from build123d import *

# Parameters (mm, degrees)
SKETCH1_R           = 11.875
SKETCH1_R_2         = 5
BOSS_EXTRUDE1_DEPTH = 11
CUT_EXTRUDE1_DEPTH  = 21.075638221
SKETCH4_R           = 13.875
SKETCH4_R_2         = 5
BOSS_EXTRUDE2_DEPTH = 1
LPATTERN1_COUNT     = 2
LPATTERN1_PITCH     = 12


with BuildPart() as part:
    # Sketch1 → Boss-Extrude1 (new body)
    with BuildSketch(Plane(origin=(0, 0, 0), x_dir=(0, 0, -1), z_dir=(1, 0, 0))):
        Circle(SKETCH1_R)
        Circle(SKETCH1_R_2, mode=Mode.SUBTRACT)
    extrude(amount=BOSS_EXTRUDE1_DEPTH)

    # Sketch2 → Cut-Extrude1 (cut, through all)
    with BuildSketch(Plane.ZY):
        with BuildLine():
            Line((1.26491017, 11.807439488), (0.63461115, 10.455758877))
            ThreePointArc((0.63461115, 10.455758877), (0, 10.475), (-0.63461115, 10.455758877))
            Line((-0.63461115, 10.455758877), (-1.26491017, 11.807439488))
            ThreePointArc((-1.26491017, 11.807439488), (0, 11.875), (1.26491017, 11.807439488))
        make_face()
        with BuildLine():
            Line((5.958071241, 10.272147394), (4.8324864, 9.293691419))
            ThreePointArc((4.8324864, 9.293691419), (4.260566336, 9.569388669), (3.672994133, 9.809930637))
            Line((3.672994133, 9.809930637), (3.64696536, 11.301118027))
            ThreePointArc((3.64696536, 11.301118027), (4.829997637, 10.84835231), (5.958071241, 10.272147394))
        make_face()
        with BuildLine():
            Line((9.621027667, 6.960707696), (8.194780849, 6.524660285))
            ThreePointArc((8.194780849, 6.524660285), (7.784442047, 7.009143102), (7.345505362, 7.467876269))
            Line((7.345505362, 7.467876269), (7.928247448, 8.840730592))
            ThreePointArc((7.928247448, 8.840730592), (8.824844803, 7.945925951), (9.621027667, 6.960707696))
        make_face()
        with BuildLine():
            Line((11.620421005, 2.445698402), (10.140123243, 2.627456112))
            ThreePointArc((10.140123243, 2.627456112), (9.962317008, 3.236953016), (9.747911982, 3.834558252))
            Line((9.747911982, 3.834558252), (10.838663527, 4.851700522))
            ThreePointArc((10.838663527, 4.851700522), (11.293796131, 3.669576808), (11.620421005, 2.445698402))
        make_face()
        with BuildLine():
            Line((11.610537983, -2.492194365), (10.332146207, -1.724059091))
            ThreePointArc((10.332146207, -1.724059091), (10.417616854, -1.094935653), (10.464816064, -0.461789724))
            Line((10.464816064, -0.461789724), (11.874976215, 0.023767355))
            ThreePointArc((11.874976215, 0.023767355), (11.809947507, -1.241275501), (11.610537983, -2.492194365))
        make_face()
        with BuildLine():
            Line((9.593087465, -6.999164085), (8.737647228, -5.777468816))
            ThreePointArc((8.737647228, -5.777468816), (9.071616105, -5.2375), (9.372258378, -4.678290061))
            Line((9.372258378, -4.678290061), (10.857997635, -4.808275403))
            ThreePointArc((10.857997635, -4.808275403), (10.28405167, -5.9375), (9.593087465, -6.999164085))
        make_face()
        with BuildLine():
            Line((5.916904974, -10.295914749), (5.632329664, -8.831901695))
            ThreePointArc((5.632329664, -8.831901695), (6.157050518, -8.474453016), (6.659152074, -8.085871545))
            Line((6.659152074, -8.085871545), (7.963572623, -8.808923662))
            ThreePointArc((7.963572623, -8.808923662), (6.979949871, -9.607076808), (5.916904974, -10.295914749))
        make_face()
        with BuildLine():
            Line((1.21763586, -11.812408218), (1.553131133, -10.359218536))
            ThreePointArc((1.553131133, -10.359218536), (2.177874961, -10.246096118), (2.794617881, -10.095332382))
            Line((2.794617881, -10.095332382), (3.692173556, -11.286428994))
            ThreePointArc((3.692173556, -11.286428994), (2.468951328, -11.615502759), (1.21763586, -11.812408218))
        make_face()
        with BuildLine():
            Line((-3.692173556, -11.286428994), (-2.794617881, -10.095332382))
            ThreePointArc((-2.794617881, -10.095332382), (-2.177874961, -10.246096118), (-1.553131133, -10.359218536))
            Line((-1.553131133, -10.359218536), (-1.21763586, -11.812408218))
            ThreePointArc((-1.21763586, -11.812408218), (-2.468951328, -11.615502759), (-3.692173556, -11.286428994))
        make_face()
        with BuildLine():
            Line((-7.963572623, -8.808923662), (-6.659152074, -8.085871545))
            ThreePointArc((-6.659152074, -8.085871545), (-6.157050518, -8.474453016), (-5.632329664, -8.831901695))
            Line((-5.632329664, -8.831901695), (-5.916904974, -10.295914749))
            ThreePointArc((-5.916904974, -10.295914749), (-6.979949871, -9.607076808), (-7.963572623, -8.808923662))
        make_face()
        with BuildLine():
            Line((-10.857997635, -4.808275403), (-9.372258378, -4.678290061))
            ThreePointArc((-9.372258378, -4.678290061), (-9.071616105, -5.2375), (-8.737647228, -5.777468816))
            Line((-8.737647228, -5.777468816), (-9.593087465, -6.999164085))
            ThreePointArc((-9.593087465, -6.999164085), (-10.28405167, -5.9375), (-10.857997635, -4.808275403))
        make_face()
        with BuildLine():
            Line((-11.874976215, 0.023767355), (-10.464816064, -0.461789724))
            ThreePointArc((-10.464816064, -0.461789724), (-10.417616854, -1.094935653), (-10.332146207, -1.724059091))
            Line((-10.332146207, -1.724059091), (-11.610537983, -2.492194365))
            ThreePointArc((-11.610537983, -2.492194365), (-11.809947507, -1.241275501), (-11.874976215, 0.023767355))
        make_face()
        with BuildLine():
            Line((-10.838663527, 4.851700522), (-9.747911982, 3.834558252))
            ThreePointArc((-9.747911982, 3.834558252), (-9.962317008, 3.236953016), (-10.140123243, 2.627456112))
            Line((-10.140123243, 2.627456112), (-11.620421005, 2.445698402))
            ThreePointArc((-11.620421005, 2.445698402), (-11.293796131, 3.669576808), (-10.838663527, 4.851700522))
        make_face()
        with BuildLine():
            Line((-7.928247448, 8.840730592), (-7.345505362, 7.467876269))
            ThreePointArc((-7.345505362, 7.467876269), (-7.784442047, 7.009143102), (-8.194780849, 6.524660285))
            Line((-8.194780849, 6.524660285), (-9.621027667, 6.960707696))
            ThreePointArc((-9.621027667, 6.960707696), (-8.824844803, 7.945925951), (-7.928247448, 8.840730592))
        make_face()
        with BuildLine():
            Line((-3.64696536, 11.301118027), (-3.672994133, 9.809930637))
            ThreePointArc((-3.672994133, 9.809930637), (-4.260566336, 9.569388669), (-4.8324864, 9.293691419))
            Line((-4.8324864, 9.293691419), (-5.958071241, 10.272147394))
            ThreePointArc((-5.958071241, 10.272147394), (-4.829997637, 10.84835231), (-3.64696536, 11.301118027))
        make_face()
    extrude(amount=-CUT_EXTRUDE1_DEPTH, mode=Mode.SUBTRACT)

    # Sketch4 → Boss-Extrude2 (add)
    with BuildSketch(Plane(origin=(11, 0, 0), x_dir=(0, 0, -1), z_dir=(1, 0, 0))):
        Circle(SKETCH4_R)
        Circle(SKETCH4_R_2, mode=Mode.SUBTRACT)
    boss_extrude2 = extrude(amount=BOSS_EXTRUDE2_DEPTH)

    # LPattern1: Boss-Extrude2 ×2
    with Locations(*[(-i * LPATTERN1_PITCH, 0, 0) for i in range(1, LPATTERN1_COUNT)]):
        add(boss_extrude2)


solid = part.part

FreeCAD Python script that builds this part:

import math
import FreeCAD as App
import Part
import Sketcher
Q = App.Units.Quantity

doc = App.newDocument("Part")
body = doc.addObject("PartDesign::Body", "Body")

sketch1 = body.newObject("Sketcher::SketchObject", "Sketch")
sketch1.AttachmentSupport = (doc.getObject("YZ_Plane"), [""])
sketch1.MapMode = "FlatFace"
sketch1.addGeometry([
    Part.Circle(App.Vector(0, 0, 0), App.Vector(0, 0, 1), 12),
    Part.Circle(App.Vector(0, 0, 0), App.Vector(0, 0, 1), 5),
], False)
sketch1.addConstraint([
    Sketcher.Constraint("Coincident", 0, 3, -1, 1),
    Sketcher.Constraint("Coincident", 1, 3, -1, 1),
    Sketcher.Constraint("Diameter", 1, 10.0),
    Sketcher.Constraint("Diameter", 0, 23.75),
])
pad1 = body.newObject("PartDesign::Pad", "Pad")
pad1.Profile = sketch1
pad1.Length = 11

sketch2 = body.newObject("Sketcher::SketchObject", "Sketch001")
sketch2.AttachmentSupport = (doc.getObject("YZ_Plane"), [""])
sketch2.MapMode = "FlatFace"
sketch2.addGeometry([
    Part.LineSegment(App.Vector(10.5, 0.6, 0), App.Vector(11.8, 1.3, 0)),
    Part.ArcOfCircle(Part.Circle(App.Vector(0, 0, 0), App.Vector(0, 0, 1), 11.9), math.radians(-6.11), math.radians(6.11)),
    Part.LineSegment(App.Vector(11.8, -1.3, 0), App.Vector(10.5, -0.6, 0)),
    Part.ArcOfCircle(Part.Circle(App.Vector(0, 0, 0), App.Vector(0, 0, 1), 10.5), math.radians(-3.47), math.radians(3.47)),
    Part.LineSegment(App.Vector(9.3, 4.8, 0), App.Vector(10.3, 6, 0)),
    Part.ArcOfCircle(Part.Circle(App.Vector(0, 0, 0), App.Vector(0, 0, 1), 11.9), math.radians(17.89), math.radians(30.11)),
    Part.LineSegment(App.Vector(11.3, 3.6, 0), App.Vector(9.8, 3.7, 0)),
    Part.ArcOfCircle(Part.Circle(App.Vector(0, 0, 0), App.Vector(0, 0, 1), 10.5), math.radians(20.53), math.radians(27.47)),
    Part.LineSegment(App.Vector(6.5, 8.2, 0), App.Vector(7, 9.6, 0)),
    Part.ArcOfCircle(Part.Circle(App.Vector(0, 0, 0), App.Vector(0, 0, 1), 11.9), math.radians(41.89), math.radians(54.11)),
    Part.LineSegment(App.Vector(8.8, 7.9, 0), App.Vector(7.5, 7.3, 0)),
    Part.ArcOfCircle(Part.Circle(App.Vector(0, 0, 0), App.Vector(0, 0, 1), 10.5), math.radians(44.53), math.radians(51.47)),
    Part.LineSegment(App.Vector(2.6, 10.1, 0), App.Vector(2.4, 11.6, 0)),
    Part.ArcOfCircle(Part.Circle(App.Vector(0, 0, 0), App.Vector(0, 0, 1), 11.9), math.radians(65.89), math.radians(78.11)),
    Part.LineSegment(App.Vector(4.9, 10.8, 0), App.Vector(3.8, 9.7, 0)),
    Part.ArcOfCircle(Part.Circle(App.Vector(0, 0, 0), App.Vector(0, 0, 1), 10.5), math.radians(68.53), math.radians(75.47)),
    Part.LineSegment(App.Vector(-1.7, 10.3, 0), App.Vector(-2.5, 11.6, 0)),
    Part.ArcOfCircle(Part.Circle(App.Vector(0, 0, 0), App.Vector(0, 0, 1), 11.9), math.radians(89.89), math.radians(102.11)),
    Part.LineSegment(App.Vector(0, 11.9, 0), App.Vector(-0.5, 10.5, 0)),
    Part.ArcOfCircle(Part.Circle(App.Vector(0, 0, 0), App.Vector(0, 0, 1), 10.5), math.radians(92.53), math.radians(99.47)),
    Part.LineSegment(App.Vector(-5.8, 8.7, 0), App.Vector(-7, 9.6, 0)),
    Part.ArcOfCircle(Part.Circle(App.Vector(0, 0, 0), App.Vector(0, 0, 1), 11.9), math.radians(113.89), math.radians(126.11)),
    Part.LineSegment(App.Vector(-4.8, 10.9, 0), App.Vector(-4.7, 9.4, 0)),
    Part.ArcOfCircle(Part.Circle(App.Vector(0, 0, 0), App.Vector(0, 0, 1), 10.5), math.radians(116.53), math.radians(123.47)),
    Part.LineSegment(App.Vector(-8.8, 5.6, 0), App.Vector(-10.3, 5.9, 0)),
    Part.ArcOfCircle(Part.Circle(App.Vector(0, 0, 0), App.Vector(0, 0, 1), 11.9), math.radians(137.89), math.radians(150.11)),
    Part.LineSegment(App.Vector(-8.8, 8, 0), App.Vector(-8.1, 6.7, 0)),
    Part.ArcOfCircle(Part.Circle(App.Vector(0, 0, 0), App.Vector(0, 0, 1), 10.5), math.radians(140.53), math.radians(147.47)),
    Part.LineSegment(App.Vector(-10.4, 1.6, 0), App.Vector(-11.8, 1.2, 0)),
    Part.ArcOfCircle(Part.Circle(App.Vector(0, 0, 0), App.Vector(0, 0, 1), 11.9), math.radians(161.89), math.radians(174.11)),
    Part.LineSegment(App.Vector(-11.3, 3.7, 0), App.Vector(-10.1, 2.8, 0)),
    Part.ArcOfCircle(Part.Circle(App.Vector(0, 0, 0), App.Vector(0, 0, 1), 10.5), math.radians(164.53), math.radians(171.47)),
    Part.LineSegment(App.Vector(-10.1, -2.8, 0), App.Vector(-11.3, -3.7, 0)),
    Part.ArcOfCircle(Part.Circle(App.Vector(0, 0, 0), App.Vector(0, 0, 1), 11.9), math.radians(-174.11), math.radians(-161.89)),
    Part.LineSegment(App.Vector(-11.8, -1.2, 0), App.Vector(-10.4, -1.6, 0)),
    Part.ArcOfCircle(Part.Circle(App.Vector(0, 0, 0), App.Vector(0, 0, 1), 10.5), math.radians(-171.47), math.radians(-164.53)),
    Part.LineSegment(App.Vector(-8.1, -6.7, 0), App.Vector(-8.8, -8, 0)),
    Part.ArcOfCircle(Part.Circle(App.Vector(0, 0, 0), App.Vector(0, 0, 1), 11.9), math.radians(-150.11), math.radians(-137.89)),
    Part.LineSegment(App.Vector(-10.3, -5.9, 0), App.Vector(-8.8, -5.6, 0)),
    Part.ArcOfCircle(Part.Circle(App.Vector(0, 0, 0), App.Vector(0, 0, 1), 10.5), math.radians(-147.47), math.radians(-140.53)),
    Part.LineSegment(App.Vector(-4.7, -9.4, 0), App.Vector(-4.8, -10.9, 0)),
    Part.ArcOfCircle(Part.Circle(App.Vector(0, 0, 0), App.Vector(0, 0, 1), 11.9), math.radians(-126.11), math.radians(-113.89)),
    Part.LineSegment(App.Vector(-7, -9.6, 0), App.Vector(-5.8, -8.7, 0)),
    Part.ArcOfCircle(Part.Circle(App.Vector(0, 0, 0), App.Vector(0, 0, 1), 10.5), math.radians(-123.47), math.radians(-116.53)),
    Part.LineSegment(App.Vector(-0.5, -10.5, 0), App.Vector(0, -11.9, 0)),
    Part.ArcOfCircle(Part.Circle(App.Vector(0, 0, 0), App.Vector(0, 0, 1), 11.9), math.radians(-102.11), math.radians(-89.89)),
    Part.LineSegment(App.Vector(-2.5, -11.6, 0), App.Vector(-1.7, -10.3, 0)),
    Part.ArcOfCircle(Part.Circle(App.Vector(0, 0, 0), App.Vector(0, 0, 1), 10.5), math.radians(-99.47), math.radians(-92.53)),
    Part.LineSegment(App.Vector(3.8, -9.7, 0), App.Vector(4.9, -10.8, 0)),
    Part.ArcOfCircle(Part.Circle(App.Vector(0, 0, 0), App.Vector(0, 0, 1), 11.9), math.radians(-78.11), math.radians(-65.89)),
    Part.LineSegment(App.Vector(2.4, -11.6, 0), App.Vector(2.6, -10.1, 0)),
    Part.ArcOfCircle(Part.Circle(App.Vector(0, 0, 0), App.Vector(0, 0, 1), 10.5), math.radians(-75.47), math.radians(-68.53)),
    Part.LineSegment(App.Vector(7.5, -7.3, 0), App.Vector(8.8, -7.9, 0)),
    Part.ArcOfCircle(Part.Circle(App.Vector(0, 0, 0), App.Vector(0, 0, 1), 11.9), math.radians(-54.11), math.radians(-41.89)),
    Part.LineSegment(App.Vector(7, -9.6, 0), App.Vector(6.5, -8.2, 0)),
    Part.ArcOfCircle(Part.Circle(App.Vector(0, 0, 0), App.Vector(0, 0, 1), 10.5), math.radians(-51.47), math.radians(-44.53)),
    Part.LineSegment(App.Vector(9.8, -3.7, 0), App.Vector(11.3, -3.6, 0)),
    Part.ArcOfCircle(Part.Circle(App.Vector(0, 0, 0), App.Vector(0, 0, 1), 11.9), math.radians(-30.11), math.radians(-17.89)),
    Part.LineSegment(App.Vector(10.3, -6, 0), App.Vector(9.3, -4.8, 0)),
    Part.ArcOfCircle(Part.Circle(App.Vector(0, 0, 0), App.Vector(0, 0, 1), 10.5), math.radians(-27.47), math.radians(-20.53)),
], False)
sketch2.addConstraint([
    Sketcher.Constraint("Coincident", 0, 2, 1, 2),
    Sketcher.Constraint("Coincident", 1, 1, 2, 1),
    Sketcher.Constraint("Coincident", 2, 2, 3, 1),
    Sketcher.Constraint("Coincident", 3, 2, 0, 1),
    Sketcher.Constraint("Coincident", 4, 2, 5, 2),
    Sketcher.Constraint("Coincident", 5, 1, 6, 1),
    Sketcher.Constraint("Coincident", 6, 2, 7, 1),
    Sketcher.Constraint("Coincident", 7, 2, 4, 1),
    Sketcher.Constraint("Coincident", 8, 2, 9, 2),
    Sketcher.Constraint("Coincident", 9, 1, 10, 1),
    Sketcher.Constraint("Coincident", 10, 2, 11, 1),
    Sketcher.Constraint("Coincident", 11, 2, 8, 1),
    Sketcher.Constraint("Coincident", 12, 2, 13, 2),
    Sketcher.Constraint("Coincident", 13, 1, 14, 1),
    Sketcher.Constraint("Coincident", 14, 2, 15, 1),
    Sketcher.Constraint("Coincident", 15, 2, 12, 1),
    Sketcher.Constraint("Coincident", 16, 2, 17, 2),
    Sketcher.Constraint("Coincident", 17, 1, 18, 1),
    Sketcher.Constraint("Coincident", 18, 2, 19, 1),
    Sketcher.Constraint("Coincident", 19, 2, 16, 1),
    Sketcher.Constraint("Coincident", 20, 2, 21, 2),
    Sketcher.Constraint("Coincident", 21, 1, 22, 1),
    Sketcher.Constraint("Coincident", 22, 2, 23, 1),
    Sketcher.Constraint("Coincident", 23, 2, 20, 1),
    Sketcher.Constraint("Coincident", 24, 2, 25, 2),
    Sketcher.Constraint("Coincident", 25, 1, 26, 1),
    Sketcher.Constraint("Coincident", 26, 2, 27, 1),
    Sketcher.Constraint("Coincident", 27, 2, 24, 1),
    Sketcher.Constraint("Coincident", 28, 2, 29, 2),
    Sketcher.Constraint("Coincident", 29, 1, 30, 1),
    Sketcher.Constraint("Coincident", 30, 2, 31, 1),
    Sketcher.Constraint("Coincident", 31, 2, 28, 1),
    Sketcher.Constraint("Coincident", 32, 2, 33, 2),
    Sketcher.Constraint("Coincident", 33, 1, 34, 1),
    Sketcher.Constraint("Coincident", 34, 2, 35, 1),
    Sketcher.Constraint("Coincident", 35, 2, 32, 1),
    Sketcher.Constraint("Coincident", 36, 2, 37, 2),
    Sketcher.Constraint("Coincident", 37, 1, 38, 1),
    Sketcher.Constraint("Coincident", 38, 2, 39, 1),
    Sketcher.Constraint("Coincident", 39, 2, 36, 1),
    Sketcher.Constraint("Coincident", 40, 2, 41, 2),
    Sketcher.Constraint("Coincident", 41, 1, 42, 1),
    Sketcher.Constraint("Coincident", 42, 2, 43, 1),
    Sketcher.Constraint("Coincident", 43, 2, 40, 1),
    Sketcher.Constraint("Coincident", 44, 2, 45, 2),
    Sketcher.Constraint("Coincident", 45, 1, 46, 1),
    Sketcher.Constraint("Coincident", 46, 2, 47, 1),
    Sketcher.Constraint("Coincident", 47, 2, 44, 1),
    Sketcher.Constraint("Coincident", 48, 2, 49, 2),
    Sketcher.Constraint("Coincident", 49, 1, 50, 1),
    Sketcher.Constraint("Coincident", 50, 2, 51, 1),
    Sketcher.Constraint("Coincident", 51, 2, 48, 1),
    Sketcher.Constraint("Coincident", 52, 2, 53, 2),
    Sketcher.Constraint("Coincident", 53, 1, 54, 1),
    Sketcher.Constraint("Coincident", 54, 2, 55, 1),
    Sketcher.Constraint("Coincident", 55, 2, 52, 1),
    Sketcher.Constraint("Coincident", 56, 2, 57, 2),
    Sketcher.Constraint("Coincident", 57, 1, 58, 1),
    Sketcher.Constraint("Coincident", 58, 2, 59, 1),
    Sketcher.Constraint("Coincident", 59, 2, 56, 1),
    Sketcher.Constraint("Coincident", 1, 3, -1, 1),
    Sketcher.Constraint("Coincident", 3, 3, -1, 1),
    Sketcher.Constraint("Coincident", 5, 3, -1, 1),
    Sketcher.Constraint("Coincident", 7, 3, -1, 1),
    Sketcher.Constraint("Coincident", 9, 3, -1, 1),
    Sketcher.Constraint("Coincident", 11, 3, -1, 1),
    Sketcher.Constraint("Coincident", 13, 3, -1, 1),
    Sketcher.Constraint("Coincident", 15, 3, -1, 1),
    Sketcher.Constraint("Coincident", 17, 3, -1, 1),
    Sketcher.Constraint("Coincident", 19, 3, -1, 1),
    Sketcher.Constraint("Coincident", 21, 3, -1, 1),
    Sketcher.Constraint("Coincident", 23, 3, -1, 1),
    Sketcher.Constraint("Coincident", 25, 3, -1, 1),
    Sketcher.Constraint("Coincident", 27, 3, -1, 1),
    Sketcher.Constraint("Coincident", 29, 3, -1, 1),
    Sketcher.Constraint("Coincident", 31, 3, -1, 1),
    Sketcher.Constraint("Coincident", 33, 3, -1, 1),
    Sketcher.Constraint("Coincident", 35, 3, -1, 1),
    Sketcher.Constraint("Coincident", 37, 3, -1, 1),
    Sketcher.Constraint("Coincident", 39, 3, -1, 1),
    Sketcher.Constraint("Coincident", 41, 3, -1, 1),
    Sketcher.Constraint("Coincident", 43, 3, -1, 1),
    Sketcher.Constraint("Coincident", 45, 3, -1, 1),
    Sketcher.Constraint("Coincident", 47, 3, -1, 1),
    Sketcher.Constraint("Coincident", 49, 3, -1, 1),
    Sketcher.Constraint("Coincident", 51, 3, -1, 1),
    Sketcher.Constraint("Coincident", 53, 3, -1, 1),
    Sketcher.Constraint("Coincident", 55, 3, -1, 1),
    Sketcher.Constraint("Coincident", 57, 3, -1, 1),
    Sketcher.Constraint("Coincident", 59, 3, -1, 1),
    Sketcher.Constraint("Equal", 1, 5),
    Sketcher.Constraint("Equal", 3, 7),
    Sketcher.Constraint("Equal", 5, 9),
    Sketcher.Constraint("Equal", 7, 11),
    Sketcher.Constraint("Equal", 9, 13),
    Sketcher.Constraint("Equal", 11, 15),
    Sketcher.Constraint("Equal", 13, 17),
    Sketcher.Constraint("Equal", 15, 19),
    Sketcher.Constraint("Equal", 17, 21),
    Sketcher.Constraint("Equal", 19, 23),
    Sketcher.Constraint("Equal", 21, 25),
    Sketcher.Constraint("Equal", 23, 27),
    Sketcher.Constraint("Equal", 25, 29),
    Sketcher.Constraint("Equal", 27, 31),
    Sketcher.Constraint("Equal", 29, 33),
    Sketcher.Constraint("Equal", 31, 35),
    Sketcher.Constraint("Equal", 33, 37),
    Sketcher.Constraint("Equal", 35, 39),
    Sketcher.Constraint("Equal", 37, 41),
    Sketcher.Constraint("Equal", 39, 43),
    Sketcher.Constraint("Equal", 41, 45),
    Sketcher.Constraint("Equal", 43, 47),
    Sketcher.Constraint("Equal", 45, 49),
    Sketcher.Constraint("Equal", 47, 51),
    Sketcher.Constraint("Equal", 49, 53),
    Sketcher.Constraint("Equal", 51, 55),
    Sketcher.Constraint("Equal", 53, 57),
    Sketcher.Constraint("Equal", 55, 59),
    Sketcher.Constraint("Vertical", 0, 2, 1, 1),
    Sketcher.Constraint("Vertical", 2, 2, 3, 2),
    Sketcher.Constraint("Vertical", 29, 1, 32, 2),
    Sketcher.Constraint("Vertical", 28, 2, 33, 1),
    Sketcher.Constraint("Vertical", 31, 2, 34, 2),
    Sketcher.Constraint("Vertical", 30, 2, 35, 2),
    Sketcher.Constraint("Vertical", 25, 1, 36, 2),
    Sketcher.Constraint("Vertical", 24, 2, 37, 1),
    Sketcher.Constraint("Vertical", 27, 2, 38, 2),
    Sketcher.Constraint("Vertical", 26, 2, 39, 2),
    Sketcher.Constraint("Vertical", 21, 1, 40, 2),
    Sketcher.Constraint("Vertical", 20, 2, 41, 1),
    Sketcher.Constraint("Vertical", 23, 2, 42, 2),
    Sketcher.Constraint("Vertical", 22, 2, 43, 2),
    Sketcher.Constraint("Vertical", 17, 1, 44, 2),
    Sketcher.Constraint("Vertical", 16, 2, 45, 1),
    Sketcher.Constraint("Vertical", 19, 2, 46, 2),
    Sketcher.Constraint("Vertical", 18, 2, 47, 2),
    Sketcher.Constraint("Vertical", 13, 1, 48, 2),
    Sketcher.Constraint("Vertical", 12, 2, 49, 1),
    Sketcher.Constraint("Vertical", 15, 2, 50, 2),
    Sketcher.Constraint("Vertical", 14, 2, 51, 2),
    Sketcher.Constraint("Vertical", 9, 1, 52, 2),
    Sketcher.Constraint("Vertical", 8, 2, 53, 1),
    Sketcher.Constraint("Vertical", 11, 2, 54, 2),
    Sketcher.Constraint("Vertical", 10, 2, 55, 2),
    Sketcher.Constraint("Vertical", 5, 1, 56, 2),
    Sketcher.Constraint("Vertical", 4, 2, 57, 1),
    Sketcher.Constraint("Vertical", 7, 2, 58, 2),
    Sketcher.Constraint("Vertical", 6, 2, 59, 2),
    Sketcher.Constraint("Equal", 2, 4),
    Sketcher.Constraint("Equal", 4, 6),
    Sketcher.Constraint("Equal", 6, 8),
    Sketcher.Constraint("Equal", 8, 10),
    Sketcher.Constraint("Equal", 10, 12),
    Sketcher.Constraint("Equal", 12, 14),
    Sketcher.Constraint("Equal", 14, 16),
    Sketcher.Constraint("Equal", 16, 18),
    Sketcher.Constraint("Equal", 18, 20),
    Sketcher.Constraint("Equal", 20, 22),
    Sketcher.Constraint("Equal", 22, 24),
    Sketcher.Constraint("Equal", 24, 26),
    Sketcher.Constraint("Equal", 26, 28),
    Sketcher.Constraint("Equal", 28, 30),
    Sketcher.Constraint("Angle", 0, Q("25 deg")),
    Sketcher.Constraint("Angle", 4, Q("49 deg")),
    Sketcher.Constraint("Angle", 6, Q("179 deg")),
    Sketcher.Constraint("Angle", 8, Q("73 deg")),
    Sketcher.Constraint("Angle", 10, Q("-157 deg")),
    Sketcher.Constraint("Angle", 12, Q("97 deg")),
    Sketcher.Constraint("Angle", 14, Q("-133 deg")),
    Sketcher.Constraint("Angle", 16, Q("121 deg")),
    Sketcher.Constraint("Angle", 18, Q("-109 deg")),
    Sketcher.Constraint("Angle", 20, Q("145 deg")),
    Sketcher.Constraint("Angle", 22, Q("-85 deg")),
    Sketcher.Constraint("Angle", 24, Q("169 deg")),
    Sketcher.Constraint("Angle", 26, Q("-61 deg")),
    Sketcher.Constraint("Angle", 28, Q("-167 deg")),
    Sketcher.Constraint("Angle", 30, Q("-37 deg")),
    Sketcher.Constraint("Radius", 1, 11.875),
    Sketcher.Constraint("Radius", 3, 10.475),
    Sketcher.Constraint("DistanceX", -1, 1, 12, 2, 2.445698),
])
pocket1 = body.newObject("PartDesign::Pocket", "Pocket")
pocket1.Profile = sketch2
pocket1.Type = "ThroughAll"
pocket1.Reversed = True

sketch3 = body.newObject("Sketcher::SketchObject", "Sketch002")
sketch3.AttachmentSupport = (doc.getObject("YZ_Plane"), [""])
sketch3.MapMode = "FlatFace"
sketch3.AttachmentOffset = App.Placement(App.Vector(0, 0, 11), App.Rotation())
sketch3.addGeometry([
    Part.Circle(App.Vector(0, 0, 0), App.Vector(0, 0, 1), 14),
    Part.Circle(App.Vector(0, 0, 0), App.Vector(0, 0, 1), 5),
], False)
sketch3.addConstraint([
    Sketcher.Constraint("Coincident", 0, 3, -1, 1),
    Sketcher.Constraint("Coincident", 1, 3, -1, 1),
    Sketcher.Constraint("Diameter", 1, 10.0),
    Sketcher.Constraint("Diameter", 0, 27.75),
])
pad2 = body.newObject("PartDesign::Pad", "Pad001")
pad2.Profile = sketch3
pad2.Length = 1
doc.recompute()

linearpattern = body.newObject("PartDesign::LinearPattern", "LinearPattern")
linearpattern.Originals = [pad2]
linearpattern.Direction = (doc.getObject("X_Axis"), [""])
linearpattern.Mode = "offset"
linearpattern.Offset = 12
linearpattern.Occurrences = 2
linearpattern.Reversed = True
body.Tip = linearpattern

doc.recompute()
